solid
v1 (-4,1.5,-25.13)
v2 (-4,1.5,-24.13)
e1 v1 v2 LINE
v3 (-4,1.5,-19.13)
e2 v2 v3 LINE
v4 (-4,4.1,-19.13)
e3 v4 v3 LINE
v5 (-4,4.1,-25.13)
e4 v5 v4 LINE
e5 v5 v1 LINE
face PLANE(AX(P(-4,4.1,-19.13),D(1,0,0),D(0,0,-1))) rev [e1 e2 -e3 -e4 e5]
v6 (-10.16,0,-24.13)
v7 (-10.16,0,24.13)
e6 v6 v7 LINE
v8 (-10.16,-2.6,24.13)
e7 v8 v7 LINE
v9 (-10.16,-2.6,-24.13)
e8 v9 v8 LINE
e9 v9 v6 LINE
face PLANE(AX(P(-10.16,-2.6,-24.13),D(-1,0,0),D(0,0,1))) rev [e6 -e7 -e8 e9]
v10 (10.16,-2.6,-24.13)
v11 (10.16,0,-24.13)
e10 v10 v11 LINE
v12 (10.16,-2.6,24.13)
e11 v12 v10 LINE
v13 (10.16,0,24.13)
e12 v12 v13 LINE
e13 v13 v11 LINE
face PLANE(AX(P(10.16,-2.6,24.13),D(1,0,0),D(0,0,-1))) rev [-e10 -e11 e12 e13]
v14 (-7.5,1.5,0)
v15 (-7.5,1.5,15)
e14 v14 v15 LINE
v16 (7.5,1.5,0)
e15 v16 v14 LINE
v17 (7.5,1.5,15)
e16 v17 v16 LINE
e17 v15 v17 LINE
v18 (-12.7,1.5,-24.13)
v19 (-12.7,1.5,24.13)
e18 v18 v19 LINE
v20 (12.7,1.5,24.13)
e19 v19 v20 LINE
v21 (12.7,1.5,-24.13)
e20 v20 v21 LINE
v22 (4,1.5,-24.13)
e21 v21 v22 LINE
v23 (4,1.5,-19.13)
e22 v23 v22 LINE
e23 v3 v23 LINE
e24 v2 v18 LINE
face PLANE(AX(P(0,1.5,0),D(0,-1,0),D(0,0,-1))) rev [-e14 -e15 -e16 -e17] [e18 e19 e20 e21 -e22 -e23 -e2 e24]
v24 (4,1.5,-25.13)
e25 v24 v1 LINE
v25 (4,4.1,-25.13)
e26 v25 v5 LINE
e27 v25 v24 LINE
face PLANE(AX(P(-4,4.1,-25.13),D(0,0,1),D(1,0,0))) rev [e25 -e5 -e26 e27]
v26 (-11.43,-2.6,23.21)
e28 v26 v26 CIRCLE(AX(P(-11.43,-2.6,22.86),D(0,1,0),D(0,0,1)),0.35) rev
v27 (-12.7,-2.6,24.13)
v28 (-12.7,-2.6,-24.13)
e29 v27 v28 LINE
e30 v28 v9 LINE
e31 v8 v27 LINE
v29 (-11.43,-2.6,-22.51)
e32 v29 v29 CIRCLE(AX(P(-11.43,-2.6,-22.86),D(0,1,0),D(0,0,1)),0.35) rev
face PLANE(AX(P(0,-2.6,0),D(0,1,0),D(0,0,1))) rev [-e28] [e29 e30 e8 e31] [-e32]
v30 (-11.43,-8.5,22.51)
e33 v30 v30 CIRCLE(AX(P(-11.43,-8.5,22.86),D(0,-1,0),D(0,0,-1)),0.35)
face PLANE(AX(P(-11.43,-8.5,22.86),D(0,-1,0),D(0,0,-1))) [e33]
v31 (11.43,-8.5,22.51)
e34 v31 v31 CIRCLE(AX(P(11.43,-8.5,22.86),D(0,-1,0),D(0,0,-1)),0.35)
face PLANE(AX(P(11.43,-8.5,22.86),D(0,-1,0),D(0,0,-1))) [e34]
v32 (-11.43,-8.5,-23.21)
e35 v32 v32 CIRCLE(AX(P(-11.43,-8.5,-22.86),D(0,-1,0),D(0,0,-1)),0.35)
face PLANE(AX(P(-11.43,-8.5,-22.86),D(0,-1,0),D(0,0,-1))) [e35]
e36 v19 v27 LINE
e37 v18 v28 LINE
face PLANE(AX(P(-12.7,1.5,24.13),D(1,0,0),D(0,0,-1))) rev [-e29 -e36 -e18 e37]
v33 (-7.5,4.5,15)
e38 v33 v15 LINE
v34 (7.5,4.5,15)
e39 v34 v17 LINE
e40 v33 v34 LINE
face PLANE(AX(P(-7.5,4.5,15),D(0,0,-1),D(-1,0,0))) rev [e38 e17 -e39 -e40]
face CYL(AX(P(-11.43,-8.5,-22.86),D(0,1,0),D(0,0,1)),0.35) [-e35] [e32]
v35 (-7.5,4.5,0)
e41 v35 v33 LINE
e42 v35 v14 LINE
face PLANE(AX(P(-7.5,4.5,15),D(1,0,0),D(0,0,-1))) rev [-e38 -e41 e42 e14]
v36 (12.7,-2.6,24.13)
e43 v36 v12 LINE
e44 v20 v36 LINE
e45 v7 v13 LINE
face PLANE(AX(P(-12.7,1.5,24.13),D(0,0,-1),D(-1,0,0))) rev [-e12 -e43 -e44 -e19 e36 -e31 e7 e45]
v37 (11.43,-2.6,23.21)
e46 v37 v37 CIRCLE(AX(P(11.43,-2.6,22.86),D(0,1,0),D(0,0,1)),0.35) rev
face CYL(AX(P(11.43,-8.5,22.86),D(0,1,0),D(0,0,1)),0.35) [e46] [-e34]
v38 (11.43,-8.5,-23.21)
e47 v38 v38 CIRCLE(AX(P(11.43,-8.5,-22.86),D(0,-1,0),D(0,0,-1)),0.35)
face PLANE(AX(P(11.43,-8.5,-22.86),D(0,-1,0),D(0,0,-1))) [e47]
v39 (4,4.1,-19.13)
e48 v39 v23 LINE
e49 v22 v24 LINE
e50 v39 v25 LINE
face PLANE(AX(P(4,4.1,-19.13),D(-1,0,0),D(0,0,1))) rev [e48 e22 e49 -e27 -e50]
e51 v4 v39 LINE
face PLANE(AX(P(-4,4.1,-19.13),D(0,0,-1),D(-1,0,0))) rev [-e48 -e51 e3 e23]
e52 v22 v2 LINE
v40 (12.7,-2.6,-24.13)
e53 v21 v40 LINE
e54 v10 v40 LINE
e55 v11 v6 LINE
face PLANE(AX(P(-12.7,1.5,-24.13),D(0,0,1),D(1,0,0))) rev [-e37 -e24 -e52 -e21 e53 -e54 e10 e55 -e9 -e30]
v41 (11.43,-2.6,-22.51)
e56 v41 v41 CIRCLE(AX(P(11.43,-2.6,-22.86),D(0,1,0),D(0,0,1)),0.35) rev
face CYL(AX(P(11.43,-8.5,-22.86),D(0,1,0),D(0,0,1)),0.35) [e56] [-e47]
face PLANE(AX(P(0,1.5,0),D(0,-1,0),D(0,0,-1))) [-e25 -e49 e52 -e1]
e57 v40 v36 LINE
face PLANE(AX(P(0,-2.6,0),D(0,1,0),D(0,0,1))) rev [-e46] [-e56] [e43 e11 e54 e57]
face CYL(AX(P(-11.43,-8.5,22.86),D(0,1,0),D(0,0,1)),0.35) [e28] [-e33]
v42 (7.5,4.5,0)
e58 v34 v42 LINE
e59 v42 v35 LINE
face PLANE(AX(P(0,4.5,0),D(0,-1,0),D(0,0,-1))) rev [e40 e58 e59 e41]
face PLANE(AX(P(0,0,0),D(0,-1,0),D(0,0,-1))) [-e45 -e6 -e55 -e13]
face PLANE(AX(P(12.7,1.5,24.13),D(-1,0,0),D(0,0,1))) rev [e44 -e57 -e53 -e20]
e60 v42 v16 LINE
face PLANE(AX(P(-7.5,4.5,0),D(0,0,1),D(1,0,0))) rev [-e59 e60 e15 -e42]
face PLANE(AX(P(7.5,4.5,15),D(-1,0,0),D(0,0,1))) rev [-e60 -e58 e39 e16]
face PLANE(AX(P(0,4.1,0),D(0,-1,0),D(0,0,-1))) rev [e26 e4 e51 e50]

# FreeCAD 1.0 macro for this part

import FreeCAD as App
import Part
import Sketcher


def add_polygon(sketch, points):
    """Adds a closed chain of lines whose ends are joined by coincident constraints."""
    first, n = sketch.GeometryCount, len(points)
    for a, b in zip(points, points[1:] + points[:1]):
        sketch.addGeometry(Part.LineSegment(App.Vector(*a, 0), App.Vector(*b, 0)), False)
    for i in range(n):
        sketch.addConstraint(Sketcher.Constraint("Coincident", first + i, 2, first + (i + 1) % n, 1))

doc = App.newDocument("Part")
body = doc.addObject("PartDesign::Body", "Body")

# Sketch on XZ plane
sketch1 = body.newObject("Sketcher::SketchObject", "Sketch")
sketch1.AttachmentSupport = (doc.getObject("XZ_Plane"), [""])
sketch1.MapMode = "FlatFace"
add_polygon(sketch1, [(-12.7, -24.13), (-12.7, 24.13), (12.7, 24.13), (12.7, -24.13)])  # lines 0-3
sketch1.addConstraint([
    Sketcher.Constraint("Vertical", 0),
    Sketcher.Constraint("Horizontal", 1),
    Sketcher.Constraint("Vertical", 2),
    Sketcher.Constraint("Horizontal", 3),
    Sketcher.Constraint("Symmetric", 0, 2, 2, 2, -1, 1),
    Sketcher.Constraint("DistanceX", 1, 1, 1, 2, 25.4),
    Sketcher.Constraint("DistanceY", 0, 1, 0, 2, 48.26),
])
pad1 = body.newObject("PartDesign::Pad", "Pad")
pad1.Profile = sketch1
pad1.Length = 1.5
pad1.Reversed = True

# Sketch on XZ plane
sketch2 = body.newObject("Sketcher::SketchObject", "Sketch001")
sketch2.AttachmentSupport = (doc.getObject("XZ_Plane"), [""])
sketch2.MapMode = "FlatFace"
sketch2.AttachmentOffset = App.Placement(App.Vector(0, 0, -1.5), App.Rotation())
add_polygon(sketch2, [(-7.5, 0), (-7.5, 15), (7.5, 15), (7.5, 0)])  # lines 0-3
sketch2.addConstraint([
    Sketcher.Constraint("Vertical", 0),
    Sketcher.Constraint("Horizontal", 1),
    Sketcher.Constraint("Vertical", 2),
    Sketcher.Constraint("Horizontal", 3),
    Sketcher.Constraint("Symmetric", 2, 2, 3, 2, -1, 1),
    Sketcher.Constraint("Equal", 3, 0),
    Sketcher.Constraint("DistanceX", 1, 1, 1, 2, 15.0),
])
pad2 = body.newObject("PartDesign::Pad", "Pad001")
pad2.Profile = sketch2
pad2.Length = 3
pad2.Reversed = True

# Sketch on XZ plane
sketch3 = body.newObject("Sketcher::SketchObject", "Sketch002")
sketch3.AttachmentSupport = (doc.getObject("XZ_Plane"), [""])
sketch3.MapMode = "FlatFace"
sketch3.AttachmentOffset = App.Placement(App.Vector(0, 0, -1.5), App.Rotation())
add_polygon(sketch3, [(-4, -25.13), (-4, -19.13), (4, -19.13), (4, -25.13)])  # lines 0-3
sketch3.addConstraint([
    Sketcher.Constraint("Vertical", 0),
    Sketcher.Constraint("Horizontal", 1),
    Sketcher.Constraint("Vertical", 2),
    Sketcher.Constraint("Horizontal", 3),
    Sketcher.Constraint("DistanceX", 1, 1, 1, 2, 8.0),
    Sketcher.Constraint("DistanceY", 0, 1, 0, 2, 6.0),
    Sketcher.Constraint("DistanceX", 0, 2, -1, 1, 4.0),
    Sketcher.Constraint("DistanceY", 0, 2, -1, 1, 19.13),
])
pad3 = body.newObject("PartDesign::Pad", "Pad002")
pad3.Profile = sketch3
pad3.Length = 2.6
pad3.Reversed = True

# Sketch on XZ plane
sketch4 = body.newObject("Sketcher::SketchObject", "Sketch003")
sketch4.AttachmentSupport = (doc.getObject("XZ_Plane"), [""])
sketch4.MapMode = "FlatFace"
add_polygon(sketch4, [(-12.7, 24.13), (-12.7, -24.13), (-10.16, -24.13), (-10.16, 24.13)])  # lines 0-3
add_polygon(sketch4, [(10.16, 24.13), (10.16, -24.13), (12.7, -24.13), (12.7, 24.13)])  # lines 4-7
sketch4.addConstraint([
    Sketcher.Constraint("Vertical", 0),
    Sketcher.Constraint("Horizontal", 1),
    Sketcher.Constraint("Vertical", 2),
    Sketcher.Constraint("Horizontal", 3),
    Sketcher.Constraint("Vertical", 4),
    Sketcher.Constraint("Horizontal", 5),
    Sketcher.Constraint("Vertical", 6),
    Sketcher.Constraint("Horizontal", 7),
    Sketcher.Constraint("Symmetric", 2, 2, 4, 2, -1, 1),
    Sketcher.Constraint("Symmetric", 0, 2, 6, 2, -1, 1),
    Sketcher.Constraint("Horizontal", 1, 2, 4, 2),
    Sketcher.Constraint("DistanceX", 1, 1, 1, 2, 2.54),
    Sketcher.Constraint("DistanceY", 0, 2, 0, 1, 48.26),
    Sketcher.Constraint("DistanceX", 0, 2, -1, 1, 12.7),
])
pad4 = body.newObject("PartDesign::Pad", "Pad003")
pad4.Profile = sketch4
pad4.Length = 2.6

# Sketch on XZ plane
sketch5 = body.newObject("Sketcher::SketchObject", "Sketch004")
sketch5.AttachmentSupport = (doc.getObject("XZ_Plane"), [""])
sketch5.MapMode = "FlatFace"
sketch5.AttachmentOffset = App.Placement(App.Vector(0, 0, 2.6), App.Rotation())
sketch5.addGeometry([
    Part.Circle(App.Vector(11.43, -22.86, 0), App.Vector(0, 0, 1), 0.35),
    Part.Circle(App.Vector(-11.43, -22.86, 0), App.Vector(0, 0, 1), 0.35),
    Part.Circle(App.Vector(-11.43, 22.86, 0), App.Vector(0, 0, 1), 0.35),
    Part.Circle(App.Vector(11.43, 22.86, 0), App.Vector(0, 0, 1), 0.35),
], False)
sketch5.addConstraint([
    Sketcher.Constraint("Equal", 0, 1),
    Sketcher.Constraint("Equal", 1, 2),
    Sketcher.Constraint("Equal", 2, 3),
    Sketcher.Constraint("Symmetric", 0, 3, 2, 3, -1, 1),
    Sketcher.Constraint("Symmetric", 1, 3, 3, 3, -1, 1),
    Sketcher.Constraint("Symmetric", 0, 3, 1, 3, -2),
    Sketcher.Constraint("Diameter", 0, 0.7),
    Sketcher.Constraint("DistanceX", -1, 1, 0, 3, 11.43),
    Sketcher.Constraint("DistanceY", 0, 3, -1, 1, 22.86),
])
pad5 = body.newObject("PartDesign::Pad", "Pad004")
pad5.Profile = sketch5
pad5.Length = 5.9

doc.recompute()
